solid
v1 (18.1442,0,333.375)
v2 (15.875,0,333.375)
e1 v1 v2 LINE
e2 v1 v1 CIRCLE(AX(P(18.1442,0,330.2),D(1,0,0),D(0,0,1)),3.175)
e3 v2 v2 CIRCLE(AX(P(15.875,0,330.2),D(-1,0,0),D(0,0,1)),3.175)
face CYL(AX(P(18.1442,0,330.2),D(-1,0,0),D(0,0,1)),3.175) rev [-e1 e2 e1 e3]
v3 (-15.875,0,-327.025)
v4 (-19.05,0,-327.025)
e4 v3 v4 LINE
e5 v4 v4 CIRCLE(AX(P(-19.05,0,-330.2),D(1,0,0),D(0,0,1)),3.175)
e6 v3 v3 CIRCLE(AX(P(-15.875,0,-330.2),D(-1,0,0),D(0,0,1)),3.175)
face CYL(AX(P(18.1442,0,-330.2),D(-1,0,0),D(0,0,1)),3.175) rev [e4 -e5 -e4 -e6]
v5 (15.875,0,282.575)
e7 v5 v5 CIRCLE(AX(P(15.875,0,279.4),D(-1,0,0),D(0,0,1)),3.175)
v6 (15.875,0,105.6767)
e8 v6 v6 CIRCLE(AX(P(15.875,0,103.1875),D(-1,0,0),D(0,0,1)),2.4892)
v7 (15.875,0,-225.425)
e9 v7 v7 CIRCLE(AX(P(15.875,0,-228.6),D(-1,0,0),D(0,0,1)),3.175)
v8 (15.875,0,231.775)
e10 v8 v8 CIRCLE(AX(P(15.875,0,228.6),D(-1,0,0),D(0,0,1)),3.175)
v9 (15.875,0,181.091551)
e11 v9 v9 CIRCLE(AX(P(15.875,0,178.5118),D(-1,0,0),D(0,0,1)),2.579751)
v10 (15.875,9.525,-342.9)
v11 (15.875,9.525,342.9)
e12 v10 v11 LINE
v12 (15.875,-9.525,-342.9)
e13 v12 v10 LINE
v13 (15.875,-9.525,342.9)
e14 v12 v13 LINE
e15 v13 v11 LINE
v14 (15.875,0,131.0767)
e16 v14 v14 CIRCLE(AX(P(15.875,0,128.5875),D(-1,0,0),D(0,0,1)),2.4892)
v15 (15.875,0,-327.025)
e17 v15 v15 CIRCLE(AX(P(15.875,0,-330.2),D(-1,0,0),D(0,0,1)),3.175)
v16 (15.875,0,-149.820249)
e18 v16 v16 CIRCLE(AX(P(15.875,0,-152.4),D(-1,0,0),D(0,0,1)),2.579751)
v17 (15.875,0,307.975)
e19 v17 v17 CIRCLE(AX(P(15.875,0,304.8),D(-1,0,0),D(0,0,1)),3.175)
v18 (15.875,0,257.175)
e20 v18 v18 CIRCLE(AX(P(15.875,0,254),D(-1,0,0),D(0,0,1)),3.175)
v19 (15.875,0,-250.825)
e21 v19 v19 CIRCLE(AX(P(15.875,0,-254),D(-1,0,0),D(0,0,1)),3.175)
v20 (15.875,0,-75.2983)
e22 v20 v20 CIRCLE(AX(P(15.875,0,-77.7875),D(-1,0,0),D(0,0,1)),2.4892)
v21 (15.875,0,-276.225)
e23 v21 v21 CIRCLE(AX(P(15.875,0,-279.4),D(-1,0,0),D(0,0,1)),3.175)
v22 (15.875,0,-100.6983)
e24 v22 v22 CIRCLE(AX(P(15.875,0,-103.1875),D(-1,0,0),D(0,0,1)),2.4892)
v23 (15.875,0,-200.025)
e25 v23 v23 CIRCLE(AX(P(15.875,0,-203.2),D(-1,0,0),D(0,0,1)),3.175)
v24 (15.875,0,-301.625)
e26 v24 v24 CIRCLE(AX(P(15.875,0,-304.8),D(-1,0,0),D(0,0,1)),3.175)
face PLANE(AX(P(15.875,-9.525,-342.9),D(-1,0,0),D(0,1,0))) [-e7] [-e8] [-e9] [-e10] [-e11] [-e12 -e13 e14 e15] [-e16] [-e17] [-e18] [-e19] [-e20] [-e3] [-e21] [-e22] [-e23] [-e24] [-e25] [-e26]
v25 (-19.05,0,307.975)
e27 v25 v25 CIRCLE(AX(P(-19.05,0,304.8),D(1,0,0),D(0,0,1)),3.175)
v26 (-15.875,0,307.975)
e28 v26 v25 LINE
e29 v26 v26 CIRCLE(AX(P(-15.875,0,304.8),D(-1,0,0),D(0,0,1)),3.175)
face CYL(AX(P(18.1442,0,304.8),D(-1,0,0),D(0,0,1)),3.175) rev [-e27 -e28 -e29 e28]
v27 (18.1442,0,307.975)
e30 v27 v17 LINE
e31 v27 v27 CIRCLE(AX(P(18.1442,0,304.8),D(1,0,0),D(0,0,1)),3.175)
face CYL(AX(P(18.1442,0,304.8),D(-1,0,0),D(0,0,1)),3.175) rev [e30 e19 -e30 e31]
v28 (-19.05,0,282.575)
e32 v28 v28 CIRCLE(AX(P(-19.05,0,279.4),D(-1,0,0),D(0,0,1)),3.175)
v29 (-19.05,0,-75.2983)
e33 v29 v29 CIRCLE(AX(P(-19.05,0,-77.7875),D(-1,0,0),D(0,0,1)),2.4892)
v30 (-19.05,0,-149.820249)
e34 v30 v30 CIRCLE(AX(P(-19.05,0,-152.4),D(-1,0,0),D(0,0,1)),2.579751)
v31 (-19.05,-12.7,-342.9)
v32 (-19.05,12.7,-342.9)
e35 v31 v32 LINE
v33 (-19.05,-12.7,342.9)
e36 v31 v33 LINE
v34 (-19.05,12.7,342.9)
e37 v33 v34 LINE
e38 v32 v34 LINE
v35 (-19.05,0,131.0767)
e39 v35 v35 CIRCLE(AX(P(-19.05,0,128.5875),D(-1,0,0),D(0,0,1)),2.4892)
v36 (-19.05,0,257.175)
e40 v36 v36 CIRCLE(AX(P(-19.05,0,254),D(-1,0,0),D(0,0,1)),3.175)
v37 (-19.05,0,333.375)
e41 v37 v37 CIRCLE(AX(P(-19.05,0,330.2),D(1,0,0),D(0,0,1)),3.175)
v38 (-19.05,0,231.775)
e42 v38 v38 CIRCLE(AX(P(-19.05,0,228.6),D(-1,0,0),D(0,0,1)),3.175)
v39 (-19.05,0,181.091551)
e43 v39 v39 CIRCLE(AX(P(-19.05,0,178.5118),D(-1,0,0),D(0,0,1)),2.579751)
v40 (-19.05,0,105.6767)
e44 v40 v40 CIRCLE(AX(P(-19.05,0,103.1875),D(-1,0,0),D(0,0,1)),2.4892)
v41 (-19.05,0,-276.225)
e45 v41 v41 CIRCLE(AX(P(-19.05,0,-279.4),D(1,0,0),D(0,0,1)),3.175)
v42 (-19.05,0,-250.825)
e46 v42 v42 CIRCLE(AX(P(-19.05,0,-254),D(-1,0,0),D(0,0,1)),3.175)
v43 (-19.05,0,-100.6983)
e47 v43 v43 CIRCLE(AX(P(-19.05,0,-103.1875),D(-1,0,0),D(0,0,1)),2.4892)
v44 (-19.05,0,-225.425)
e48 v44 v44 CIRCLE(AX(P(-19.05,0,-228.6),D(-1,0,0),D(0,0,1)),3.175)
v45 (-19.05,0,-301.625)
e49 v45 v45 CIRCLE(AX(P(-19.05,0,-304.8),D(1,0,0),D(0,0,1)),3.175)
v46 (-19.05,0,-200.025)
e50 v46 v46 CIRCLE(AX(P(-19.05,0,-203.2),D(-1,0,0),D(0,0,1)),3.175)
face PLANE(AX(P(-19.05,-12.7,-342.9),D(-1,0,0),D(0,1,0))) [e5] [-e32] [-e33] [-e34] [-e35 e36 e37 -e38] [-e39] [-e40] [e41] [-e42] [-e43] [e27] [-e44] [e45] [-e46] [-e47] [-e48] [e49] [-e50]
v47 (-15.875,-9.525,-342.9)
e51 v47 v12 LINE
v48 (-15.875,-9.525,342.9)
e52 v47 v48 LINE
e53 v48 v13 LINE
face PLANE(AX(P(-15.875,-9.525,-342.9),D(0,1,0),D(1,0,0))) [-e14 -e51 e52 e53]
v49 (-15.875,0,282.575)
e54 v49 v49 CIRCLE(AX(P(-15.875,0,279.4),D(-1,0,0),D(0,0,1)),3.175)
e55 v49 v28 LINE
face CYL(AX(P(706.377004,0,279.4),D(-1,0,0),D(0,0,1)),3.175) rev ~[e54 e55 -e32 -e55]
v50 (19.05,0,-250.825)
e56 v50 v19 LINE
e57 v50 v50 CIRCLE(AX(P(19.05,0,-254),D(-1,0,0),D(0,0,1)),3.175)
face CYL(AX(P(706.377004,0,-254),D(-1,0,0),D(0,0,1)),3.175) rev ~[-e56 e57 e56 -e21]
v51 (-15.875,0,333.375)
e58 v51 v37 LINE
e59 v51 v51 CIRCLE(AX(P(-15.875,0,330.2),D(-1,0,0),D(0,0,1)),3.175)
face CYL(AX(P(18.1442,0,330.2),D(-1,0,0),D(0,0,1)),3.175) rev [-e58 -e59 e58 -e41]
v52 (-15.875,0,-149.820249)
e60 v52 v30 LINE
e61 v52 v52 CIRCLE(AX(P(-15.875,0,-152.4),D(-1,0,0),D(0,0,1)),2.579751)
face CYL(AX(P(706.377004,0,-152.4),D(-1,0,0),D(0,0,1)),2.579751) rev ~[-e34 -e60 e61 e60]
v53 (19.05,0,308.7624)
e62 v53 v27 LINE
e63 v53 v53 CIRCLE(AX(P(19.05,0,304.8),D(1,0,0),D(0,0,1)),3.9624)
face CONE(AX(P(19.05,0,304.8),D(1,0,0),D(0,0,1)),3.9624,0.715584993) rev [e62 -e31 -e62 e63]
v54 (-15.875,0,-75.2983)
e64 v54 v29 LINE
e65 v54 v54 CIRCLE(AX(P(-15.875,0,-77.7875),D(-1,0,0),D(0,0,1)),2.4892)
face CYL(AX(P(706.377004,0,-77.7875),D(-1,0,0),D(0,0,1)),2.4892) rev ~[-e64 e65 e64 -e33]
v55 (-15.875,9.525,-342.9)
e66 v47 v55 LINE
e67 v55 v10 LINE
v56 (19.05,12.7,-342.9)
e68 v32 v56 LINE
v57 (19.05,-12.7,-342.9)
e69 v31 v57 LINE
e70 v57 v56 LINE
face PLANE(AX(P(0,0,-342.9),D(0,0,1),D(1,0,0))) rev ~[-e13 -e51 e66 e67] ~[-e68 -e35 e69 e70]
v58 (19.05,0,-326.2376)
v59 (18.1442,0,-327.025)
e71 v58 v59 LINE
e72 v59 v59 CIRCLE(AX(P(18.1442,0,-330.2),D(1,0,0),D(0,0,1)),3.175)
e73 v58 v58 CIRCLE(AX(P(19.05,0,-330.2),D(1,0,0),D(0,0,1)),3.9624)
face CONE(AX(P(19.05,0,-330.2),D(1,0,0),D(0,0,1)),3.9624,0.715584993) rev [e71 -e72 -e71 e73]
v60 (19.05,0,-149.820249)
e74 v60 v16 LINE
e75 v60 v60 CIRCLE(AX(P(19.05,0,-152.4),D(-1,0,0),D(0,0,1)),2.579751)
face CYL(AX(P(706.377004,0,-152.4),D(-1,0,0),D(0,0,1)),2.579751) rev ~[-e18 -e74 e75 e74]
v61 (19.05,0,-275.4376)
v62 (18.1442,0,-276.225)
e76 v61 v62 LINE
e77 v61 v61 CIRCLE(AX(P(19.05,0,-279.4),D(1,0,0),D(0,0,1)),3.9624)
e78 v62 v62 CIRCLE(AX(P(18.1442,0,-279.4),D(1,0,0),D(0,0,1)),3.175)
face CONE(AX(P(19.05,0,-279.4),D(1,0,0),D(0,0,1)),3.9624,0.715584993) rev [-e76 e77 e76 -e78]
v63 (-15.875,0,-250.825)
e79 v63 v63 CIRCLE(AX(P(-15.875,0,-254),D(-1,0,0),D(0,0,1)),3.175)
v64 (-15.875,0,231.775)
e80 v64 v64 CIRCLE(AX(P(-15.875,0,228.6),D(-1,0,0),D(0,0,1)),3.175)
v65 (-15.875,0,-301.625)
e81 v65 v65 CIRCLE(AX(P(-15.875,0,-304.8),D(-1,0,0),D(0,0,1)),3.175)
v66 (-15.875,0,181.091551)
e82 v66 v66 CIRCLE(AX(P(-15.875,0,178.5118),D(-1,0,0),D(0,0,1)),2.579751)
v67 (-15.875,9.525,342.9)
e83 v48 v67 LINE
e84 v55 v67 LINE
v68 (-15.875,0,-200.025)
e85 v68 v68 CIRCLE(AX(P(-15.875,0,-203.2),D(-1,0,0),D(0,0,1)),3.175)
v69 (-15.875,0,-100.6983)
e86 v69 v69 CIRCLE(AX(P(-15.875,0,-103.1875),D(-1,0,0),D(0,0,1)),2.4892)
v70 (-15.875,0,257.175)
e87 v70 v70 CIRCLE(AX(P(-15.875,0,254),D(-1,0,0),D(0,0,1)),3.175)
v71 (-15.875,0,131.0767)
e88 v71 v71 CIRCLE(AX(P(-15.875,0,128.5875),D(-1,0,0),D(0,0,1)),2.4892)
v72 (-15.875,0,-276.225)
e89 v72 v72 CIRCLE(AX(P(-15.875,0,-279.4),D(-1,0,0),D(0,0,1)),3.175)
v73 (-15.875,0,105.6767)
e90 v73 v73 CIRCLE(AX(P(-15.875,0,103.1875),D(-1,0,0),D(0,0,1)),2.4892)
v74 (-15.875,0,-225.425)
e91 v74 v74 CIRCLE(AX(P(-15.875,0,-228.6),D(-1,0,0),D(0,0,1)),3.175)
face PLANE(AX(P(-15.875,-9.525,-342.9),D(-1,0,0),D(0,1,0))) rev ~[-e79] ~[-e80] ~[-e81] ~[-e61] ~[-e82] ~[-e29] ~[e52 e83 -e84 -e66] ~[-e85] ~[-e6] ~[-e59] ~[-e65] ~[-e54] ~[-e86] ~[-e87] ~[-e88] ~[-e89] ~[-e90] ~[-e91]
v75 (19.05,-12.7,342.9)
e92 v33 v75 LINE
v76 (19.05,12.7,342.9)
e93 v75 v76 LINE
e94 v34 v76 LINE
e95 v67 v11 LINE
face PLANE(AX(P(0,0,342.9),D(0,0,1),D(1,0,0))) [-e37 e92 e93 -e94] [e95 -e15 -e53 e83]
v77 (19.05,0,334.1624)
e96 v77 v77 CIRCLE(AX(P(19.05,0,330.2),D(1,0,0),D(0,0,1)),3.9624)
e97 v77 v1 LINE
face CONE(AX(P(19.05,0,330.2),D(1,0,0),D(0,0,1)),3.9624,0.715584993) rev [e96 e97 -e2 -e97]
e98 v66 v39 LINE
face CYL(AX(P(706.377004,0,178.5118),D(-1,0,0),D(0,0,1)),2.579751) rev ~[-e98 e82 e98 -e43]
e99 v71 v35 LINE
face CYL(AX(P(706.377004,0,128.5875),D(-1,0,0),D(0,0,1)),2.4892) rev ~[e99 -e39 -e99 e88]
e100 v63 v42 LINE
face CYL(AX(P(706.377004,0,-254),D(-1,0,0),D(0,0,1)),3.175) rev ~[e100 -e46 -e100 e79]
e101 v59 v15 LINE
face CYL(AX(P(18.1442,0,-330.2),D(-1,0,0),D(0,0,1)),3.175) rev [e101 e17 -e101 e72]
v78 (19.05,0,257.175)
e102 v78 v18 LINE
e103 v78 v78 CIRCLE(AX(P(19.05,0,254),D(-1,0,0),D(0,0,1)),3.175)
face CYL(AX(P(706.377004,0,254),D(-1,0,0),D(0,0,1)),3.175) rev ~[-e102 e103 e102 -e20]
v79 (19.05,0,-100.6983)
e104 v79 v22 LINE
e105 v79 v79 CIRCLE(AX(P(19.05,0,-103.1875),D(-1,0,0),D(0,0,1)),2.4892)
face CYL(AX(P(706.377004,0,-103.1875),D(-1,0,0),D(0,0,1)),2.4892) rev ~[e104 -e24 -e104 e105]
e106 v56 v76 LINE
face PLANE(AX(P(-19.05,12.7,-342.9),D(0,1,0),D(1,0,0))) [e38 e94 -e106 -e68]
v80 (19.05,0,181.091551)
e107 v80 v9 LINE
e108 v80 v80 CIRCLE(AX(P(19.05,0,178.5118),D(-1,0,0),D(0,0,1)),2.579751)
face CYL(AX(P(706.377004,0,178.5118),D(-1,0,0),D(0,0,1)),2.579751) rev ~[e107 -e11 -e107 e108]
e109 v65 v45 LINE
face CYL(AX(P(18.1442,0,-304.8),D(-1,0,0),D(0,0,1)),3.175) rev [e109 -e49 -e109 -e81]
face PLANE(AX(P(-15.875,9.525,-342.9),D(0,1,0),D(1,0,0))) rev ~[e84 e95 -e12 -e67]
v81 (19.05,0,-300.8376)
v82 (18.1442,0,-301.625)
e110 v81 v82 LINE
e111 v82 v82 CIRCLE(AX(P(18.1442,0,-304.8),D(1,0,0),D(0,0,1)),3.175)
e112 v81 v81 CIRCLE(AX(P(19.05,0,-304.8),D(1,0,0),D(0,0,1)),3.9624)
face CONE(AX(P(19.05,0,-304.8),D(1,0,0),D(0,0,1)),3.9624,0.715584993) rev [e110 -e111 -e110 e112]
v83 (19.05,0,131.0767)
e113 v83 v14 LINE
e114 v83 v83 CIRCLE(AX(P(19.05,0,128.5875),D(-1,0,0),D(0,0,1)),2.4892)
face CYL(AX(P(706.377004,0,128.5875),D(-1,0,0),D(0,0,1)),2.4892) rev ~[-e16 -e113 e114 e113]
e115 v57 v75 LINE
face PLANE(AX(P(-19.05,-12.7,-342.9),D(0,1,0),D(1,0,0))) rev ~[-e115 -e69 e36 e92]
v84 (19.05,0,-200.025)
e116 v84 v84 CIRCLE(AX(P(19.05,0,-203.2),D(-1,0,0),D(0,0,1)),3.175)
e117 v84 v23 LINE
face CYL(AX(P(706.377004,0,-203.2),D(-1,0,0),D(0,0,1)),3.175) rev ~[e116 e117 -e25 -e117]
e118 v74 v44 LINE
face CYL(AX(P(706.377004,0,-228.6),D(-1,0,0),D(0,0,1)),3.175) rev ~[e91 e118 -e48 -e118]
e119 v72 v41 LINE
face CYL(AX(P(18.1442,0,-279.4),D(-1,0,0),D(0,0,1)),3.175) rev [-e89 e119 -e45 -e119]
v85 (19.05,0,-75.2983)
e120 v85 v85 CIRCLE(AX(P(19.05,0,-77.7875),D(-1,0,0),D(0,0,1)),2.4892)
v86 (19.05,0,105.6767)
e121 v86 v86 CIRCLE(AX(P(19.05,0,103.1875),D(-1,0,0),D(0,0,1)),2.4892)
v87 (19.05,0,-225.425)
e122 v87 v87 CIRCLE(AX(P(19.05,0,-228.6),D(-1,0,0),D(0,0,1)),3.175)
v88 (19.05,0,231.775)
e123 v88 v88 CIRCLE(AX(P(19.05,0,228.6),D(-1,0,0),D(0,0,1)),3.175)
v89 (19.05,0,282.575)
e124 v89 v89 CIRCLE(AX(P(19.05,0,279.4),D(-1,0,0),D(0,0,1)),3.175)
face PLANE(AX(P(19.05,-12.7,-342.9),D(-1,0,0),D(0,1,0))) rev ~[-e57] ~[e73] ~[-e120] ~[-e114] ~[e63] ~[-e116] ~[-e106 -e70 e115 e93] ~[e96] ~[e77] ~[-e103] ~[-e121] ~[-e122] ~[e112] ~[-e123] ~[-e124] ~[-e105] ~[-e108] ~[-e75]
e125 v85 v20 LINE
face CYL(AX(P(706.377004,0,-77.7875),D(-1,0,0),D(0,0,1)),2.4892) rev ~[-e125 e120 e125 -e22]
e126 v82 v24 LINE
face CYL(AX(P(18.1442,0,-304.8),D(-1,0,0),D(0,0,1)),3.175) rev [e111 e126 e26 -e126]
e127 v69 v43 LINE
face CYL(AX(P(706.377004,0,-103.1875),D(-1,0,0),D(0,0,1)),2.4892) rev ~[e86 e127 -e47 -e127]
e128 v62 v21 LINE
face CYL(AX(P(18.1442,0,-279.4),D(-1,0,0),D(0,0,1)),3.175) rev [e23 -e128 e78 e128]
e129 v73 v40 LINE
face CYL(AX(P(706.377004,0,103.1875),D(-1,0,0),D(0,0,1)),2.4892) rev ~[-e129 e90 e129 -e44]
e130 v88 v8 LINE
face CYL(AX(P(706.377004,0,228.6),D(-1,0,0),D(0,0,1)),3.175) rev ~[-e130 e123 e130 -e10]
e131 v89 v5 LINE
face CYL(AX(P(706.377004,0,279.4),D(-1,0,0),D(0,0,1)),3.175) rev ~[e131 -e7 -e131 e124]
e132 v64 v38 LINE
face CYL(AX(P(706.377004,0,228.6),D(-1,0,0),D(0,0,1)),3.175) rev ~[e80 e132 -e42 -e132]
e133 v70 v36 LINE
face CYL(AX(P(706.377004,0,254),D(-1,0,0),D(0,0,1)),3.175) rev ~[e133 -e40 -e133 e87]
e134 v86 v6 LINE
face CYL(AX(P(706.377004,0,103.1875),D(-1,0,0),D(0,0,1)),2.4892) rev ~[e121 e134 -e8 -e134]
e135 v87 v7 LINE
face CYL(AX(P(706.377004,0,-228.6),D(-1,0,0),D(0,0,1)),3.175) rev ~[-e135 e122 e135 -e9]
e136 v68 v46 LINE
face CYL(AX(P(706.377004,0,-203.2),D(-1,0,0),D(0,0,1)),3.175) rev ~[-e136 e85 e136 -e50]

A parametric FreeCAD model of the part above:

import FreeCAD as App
import Part
import Sketcher

V = App.Vector
Q = App.Units.Quantity

doc = App.newDocument("Part")
body = doc.addObject("PartDesign::Body", "Body")

sketch1 = doc.addObject("Sketcher::SketchObject", "Sketch")
body.addObject(sketch1)
sketch1.AttachmentSupport = (doc.XY_Plane, [""])
sketch1.MapMode = "FlatFace"
sketch1.addGeometry([
    Part.LineSegment(V(-19, 13, 0), V(-19, -13, 0)),
    Part.LineSegment(V(-19, -13, 0), V(19, -13, 0)),
    Part.LineSegment(V(19, -13, 0), V(19, 13, 0)),
    Part.LineSegment(V(19, 13, 0), V(-19, 13, 0)),
    Part.LineSegment(V(16, -10, 0), V(-16, -10, 0)),
    Part.LineSegment(V(-16, -10, 0), V(-16, 10, 0)),
    Part.LineSegment(V(-16, 10, 0), V(16, 10, 0)),
    Part.LineSegment(V(16, 10, 0), V(16, -10, 0)),
], False)
sketch1.addConstraint([
    Sketcher.Constraint("Coincident", 0, 2, 1, 1),
    Sketcher.Constraint("Coincident", 1, 2, 2, 1),
    Sketcher.Constraint("Coincident", 2, 2, 3, 1),
    Sketcher.Constraint("Coincident", 3, 2, 0, 1),
    Sketcher.Constraint("Coincident", 4, 2, 5, 1),
    Sketcher.Constraint("Coincident", 5, 2, 6, 1),
    Sketcher.Constraint("Coincident", 6, 2, 7, 1),
    Sketcher.Constraint("Coincident", 7, 2, 4, 1),
    Sketcher.Constraint("Vertical", 0),
    Sketcher.Constraint("Horizontal", 1),
    Sketcher.Constraint("Vertical", 2),
    Sketcher.Constraint("Horizontal", 3),
    Sketcher.Constraint("Horizontal", 4),
    Sketcher.Constraint("Vertical", 5),
    Sketcher.Constraint("Horizontal", 6),
    Sketcher.Constraint("Vertical", 7),
    Sketcher.Constraint("Symmetric", 0, 2, 2, 2, -1, 1),
    Sketcher.Constraint("Symmetric", 4, 2, 6, 2, -1, 1),
    Sketcher.Constraint("DistanceY", 0, 2, 0, 1, Q("1 in")),
    Sketcher.Constraint("DistanceX", 1, 1, 1, 2, Q("1.5 in")),
    Sketcher.Constraint("DistanceX", 4, 2, 4, 1, Q("1.25 in")),
    Sketcher.Constraint("DistanceY", 5, 1, 5, 2, Q("0.75 in")),
])
pad1 = doc.addObject("PartDesign::Pad", "Pad")
body.addObject(pad1)
pad1.Profile = sketch1
pad1.Type = "TwoLengths"
pad1.Length = Q("13.5 in")
pad1.Length2 = Q("13.5 in")

sketch2 = doc.addObject("Sketcher::SketchObject", "Sketch001")
body.addObject(sketch2)
sketch2.AttachmentSupport = (doc.XZ_Plane, [""])
sketch2.MapMode = "FlatFace"
sketch2.addGeometry([
    Part.LineSegment(V(19.1, -330.2, 0), V(-19.1, -330.2, 0)),
    Part.LineSegment(V(-19.1, -330.2, 0), V(-19.1, -327, 0)),
    Part.LineSegment(V(-19.1, -327, 0), V(18.1, -327, 0)),
    Part.LineSegment(V(18.1, -327, 0), V(19.1, -326.2, 0)),
    Part.LineSegment(V(19.1, -326.2, 0), V(19.1, -330.2, 0)),
], False)
sketch2.addGeometry(Part.LineSegment(V(-19.1, -330.2, 0), V(19.1, -330.2, 0)), True)
sketch2.addConstraint([
    Sketcher.Constraint("Coincident", 0, 2, 1, 1),
    Sketcher.Constraint("Coincident", 1, 2, 2, 1),
    Sketcher.Constraint("Coincident", 2, 2, 3, 1),
    Sketcher.Constraint("Coincident", 3, 2, 4, 1),
    Sketcher.Constraint("Coincident", 4, 2, 0, 1),
    Sketcher.Constraint("Horizontal", 0),
    Sketcher.Constraint("Vertical", 1),
    Sketcher.Constraint("Horizontal", 2),
    Sketcher.Constraint("Vertical", 4),
    Sketcher.Constraint("Horizontal", 5),
    Sketcher.Constraint("Coincident", 5, 1, 0, 2),
    Sketcher.Constraint("Vertical", 3, 2, 5, 2),
    Sketcher.Constraint("DistanceX", 0, 2, 0, 1, Q("1.5 in")),
    Sketcher.Constraint("DistanceY", 0, 2, -1, 1, Q("13 in")),
    Sketcher.Constraint("Angle", 3, Q("41 deg")),
    Sketcher.Constraint("DistanceY", 1, 1, 1, 2, Q("0.125 in")),
    Sketcher.Constraint("DistanceY", 4, 2, 4, 1, Q("0.156 in")),
    Sketcher.Constraint("DistanceX", 0, 2, -1, 1, Q("0.75 in")),
])
groove = doc.addObject("PartDesign::Groove", "Groove")
body.addObject(groove)
groove.Profile = sketch2
groove.ReferenceAxis = (sketch2, ["Axis0"])
groove.Angle = 360
doc.recompute()

linearpattern = doc.addObject("PartDesign::LinearPattern", "LinearPattern")
body.addObject(linearpattern)
linearpattern.Originals = [groove]
linearpattern.Direction = (doc.Z_Axis, [""])
linearpattern.Mode = "offset"
linearpattern.Offset = Q("1 in")
linearpattern.Occurrences = 2
body.Tip = linearpattern
doc.recompute()

linearpattern2 = doc.addObject("PartDesign::LinearPattern", "LinearPattern001")
body.addObject(linearpattern2)
linearpattern2.Originals = [groove]
linearpattern2.Direction = (doc.Z_Axis, [""])
linearpattern2.Mode = "offset"
linearpattern2.Offset = Q("26 in")
linearpattern2.Occurrences = 2
body.Tip = linearpattern2
doc.recompute()

linearpattern3 = doc.addObject("PartDesign::LinearPattern", "LinearPattern002")
body.addObject(linearpattern3)
linearpattern3.Originals = [groove]
linearpattern3.Direction = (doc.Z_Axis, [""])
linearpattern3.Mode = "offset"
linearpattern3.Offset = Q("2 in")
linearpattern3.Occurrences = 2
body.Tip = linearpattern3
doc.recompute()

linearpattern4 = doc.addObject("PartDesign::LinearPattern", "LinearPattern003")
body.addObject(linearpattern4)
linearpattern4.Originals = [groove]
linearpattern4.Direction = (doc.Z_Axis, [""])
linearpattern4.Mode = "offset"
linearpattern4.Offset = Q("25 in")
linearpattern4.Occurrences = 2
body.Tip = linearpattern4

sketch3 = doc.addObject("Sketcher::SketchObject", "Sketch002")
body.addObject(sketch3)
sketch3.AttachmentSupport = (doc.YZ_Plane, [""])
sketch3.MapMode = "FlatFace"
sketch3.AttachmentOffset = App.Placement(V(0, 0, 0.75 * 25.4), App.Rotation())
sketch3.addGeometry([
    Part.Circle(V(0, 279.4, 0), V(0, 0, 1), 3.2),
    Part.Circle(V(0, 254, 0), V(0, 0, 1), 3.2),
    Part.Circle(V(0, 228.6, 0), V(0, 0, 1), 3.2),
    Part.Circle(V(0, -254, 0), V(0, 0, 1), 3.2),
    Part.Circle(V(0, -228.6, 0), V(0, 0, 1), 3.2),
    Part.Circle(V(0, -203.2, 0), V(0, 0, 1), 3.2),
], False)
sketch3.addConstraint([
    Sketcher.Constraint("Equal", 0, 1),
    Sketcher.Constraint("Equal", 1, 2),
    Sketcher.Constraint("Equal", 2, 3),
    Sketcher.Constraint("Equal", 3, 4),
    Sketcher.Constraint("Equal", 4, 5),
    Sketcher.Constraint("Symmetric", 1, 3, 3, 3, -1, 1),
    Sketcher.Constraint("Symmetric", 2, 3, 4, 3, -1, 1),
    Sketcher.Constraint("PointOnObject", 0, 3, -2),
    Sketcher.Constraint("PointOnObject", 1, 3, -2),
    Sketcher.Constraint("PointOnObject", 2, 3, -2),
    Sketcher.Constraint("PointOnObject", 5, 3, -2),
    Sketcher.Constraint("Diameter", 0, Q("0.25 in")),
    Sketcher.Constraint("DistanceY", -1, 1, 0, 3, Q("11 in")),
    Sketcher.Constraint("DistanceY", -1, 1, 1, 3, Q("10 in")),
    Sketcher.Constraint("DistanceY", -1, 1, 2, 3, Q("9 in")),
    Sketcher.Constraint("DistanceY", 5, 3, -1, 1, Q("8 in")),
])
doc.recompute()
hole = doc.addObject("PartDesign::Hole", "Hole")
body.addObject(hole)
hole.Profile = sketch3
hole.ThreadType = "None"
hole.Diameter = Q("0.25 in")
hole.DepthType = "ThroughAll"

sketch4 = doc.addObject("Sketcher::SketchObject", "Sketch003")
body.addObject(sketch4)
sketch4.AttachmentSupport = (doc.YZ_Plane, [""])
sketch4.MapMode = "FlatFace"
sketch4.AttachmentOffset = App.Placement(V(0, 0, 0.75 * 25.4), App.Rotation())
sketch4.addGeometry([
    Part.Circle(V(0, -152.4, 0), V(0, 0, 1), 2.6),
    Part.Circle(V(0, 178.5, 0), V(0, 0, 1), 2.6),
], False)
sketch4.addConstraint([
    Sketcher.Constraint("Equal", 0, 1),
    Sketcher.Constraint("PointOnObject", 0, 3, -2),
    Sketcher.Constraint("PointOnObject", 1, 3, -2),
    Sketcher.Constraint("DistanceY", 0, 3, -1, 1, Q("6 in")),
    Sketcher.Constraint("Diameter", 0, Q("5.159502 mm")),
    Sketcher.Constraint("DistanceY", -1, 1, 1, 3, Q("178.5118 mm")),
])
doc.recompute()
hole2 = doc.addObject("PartDesign::Hole", "Hole001")
body.addObject(hole2)
hole2.Profile = sketch4
hole2.ThreadType = "None"
hole2.Diameter = 5.159502
hole2.DepthType = "ThroughAll"

sketch5 = doc.addObject("Sketcher::SketchObject", "Sketch004")
body.addObject(sketch5)
sketch5.AttachmentSupport = (doc.YZ_Plane, [""])
sketch5.MapMode = "FlatFace"
sketch5.AttachmentOffset = App.Placement(V(0, 0, 0.75 * 25.4), App.Rotation())
sketch5.addGeometry([
    Part.Circle(V(0, 128.6, 0), V(0, 0, 1), 2.5),
    Part.Circle(V(0, 103.2, 0), V(0, 0, 1), 2.5),
    Part.Circle(V(0, -77.8, 0), V(0, 0, 1), 2.5),
    Part.Circle(V(0, -103.2, 0), V(0, 0, 1), 2.5),
], False)
sketch5.addConstraint([
    Sketcher.Constraint("Equal", 0, 1),
    Sketcher.Constraint("Equal", 1, 2),
    Sketcher.Constraint("Equal", 2, 3),
    Sketcher.Constraint("Symmetric", 1, 3, 3, 3, -1, 1),
    Sketcher.Constraint("PointOnObject", 0, 3, -2),
    Sketcher.Constraint("PointOnObject", 1, 3, -2),
    Sketcher.Constraint("PointOnObject", 2, 3, -2),
    Sketcher.Constraint("Diameter", 0, Q("0.196 in")),
    Sketcher.Constraint("DistanceY", 1, 3, 0, 3, Q("1 in")),
    Sketcher.Constraint("DistanceY", 3, 3, 2, 3, Q("1 in")),
    Sketcher.Constraint("DistanceY", -1, 1, 0, 3, Q("5.0625 in")),
])
doc.recompute()
hole3 = doc.addObject("PartDesign::Hole", "Hole002")
body.addObject(hole3)
hole3.Profile = sketch5
hole3.ThreadType = "None"
hole3.Diameter = Q("0.196 in")
hole3.DepthType = "ThroughAll"

doc.recompute()
